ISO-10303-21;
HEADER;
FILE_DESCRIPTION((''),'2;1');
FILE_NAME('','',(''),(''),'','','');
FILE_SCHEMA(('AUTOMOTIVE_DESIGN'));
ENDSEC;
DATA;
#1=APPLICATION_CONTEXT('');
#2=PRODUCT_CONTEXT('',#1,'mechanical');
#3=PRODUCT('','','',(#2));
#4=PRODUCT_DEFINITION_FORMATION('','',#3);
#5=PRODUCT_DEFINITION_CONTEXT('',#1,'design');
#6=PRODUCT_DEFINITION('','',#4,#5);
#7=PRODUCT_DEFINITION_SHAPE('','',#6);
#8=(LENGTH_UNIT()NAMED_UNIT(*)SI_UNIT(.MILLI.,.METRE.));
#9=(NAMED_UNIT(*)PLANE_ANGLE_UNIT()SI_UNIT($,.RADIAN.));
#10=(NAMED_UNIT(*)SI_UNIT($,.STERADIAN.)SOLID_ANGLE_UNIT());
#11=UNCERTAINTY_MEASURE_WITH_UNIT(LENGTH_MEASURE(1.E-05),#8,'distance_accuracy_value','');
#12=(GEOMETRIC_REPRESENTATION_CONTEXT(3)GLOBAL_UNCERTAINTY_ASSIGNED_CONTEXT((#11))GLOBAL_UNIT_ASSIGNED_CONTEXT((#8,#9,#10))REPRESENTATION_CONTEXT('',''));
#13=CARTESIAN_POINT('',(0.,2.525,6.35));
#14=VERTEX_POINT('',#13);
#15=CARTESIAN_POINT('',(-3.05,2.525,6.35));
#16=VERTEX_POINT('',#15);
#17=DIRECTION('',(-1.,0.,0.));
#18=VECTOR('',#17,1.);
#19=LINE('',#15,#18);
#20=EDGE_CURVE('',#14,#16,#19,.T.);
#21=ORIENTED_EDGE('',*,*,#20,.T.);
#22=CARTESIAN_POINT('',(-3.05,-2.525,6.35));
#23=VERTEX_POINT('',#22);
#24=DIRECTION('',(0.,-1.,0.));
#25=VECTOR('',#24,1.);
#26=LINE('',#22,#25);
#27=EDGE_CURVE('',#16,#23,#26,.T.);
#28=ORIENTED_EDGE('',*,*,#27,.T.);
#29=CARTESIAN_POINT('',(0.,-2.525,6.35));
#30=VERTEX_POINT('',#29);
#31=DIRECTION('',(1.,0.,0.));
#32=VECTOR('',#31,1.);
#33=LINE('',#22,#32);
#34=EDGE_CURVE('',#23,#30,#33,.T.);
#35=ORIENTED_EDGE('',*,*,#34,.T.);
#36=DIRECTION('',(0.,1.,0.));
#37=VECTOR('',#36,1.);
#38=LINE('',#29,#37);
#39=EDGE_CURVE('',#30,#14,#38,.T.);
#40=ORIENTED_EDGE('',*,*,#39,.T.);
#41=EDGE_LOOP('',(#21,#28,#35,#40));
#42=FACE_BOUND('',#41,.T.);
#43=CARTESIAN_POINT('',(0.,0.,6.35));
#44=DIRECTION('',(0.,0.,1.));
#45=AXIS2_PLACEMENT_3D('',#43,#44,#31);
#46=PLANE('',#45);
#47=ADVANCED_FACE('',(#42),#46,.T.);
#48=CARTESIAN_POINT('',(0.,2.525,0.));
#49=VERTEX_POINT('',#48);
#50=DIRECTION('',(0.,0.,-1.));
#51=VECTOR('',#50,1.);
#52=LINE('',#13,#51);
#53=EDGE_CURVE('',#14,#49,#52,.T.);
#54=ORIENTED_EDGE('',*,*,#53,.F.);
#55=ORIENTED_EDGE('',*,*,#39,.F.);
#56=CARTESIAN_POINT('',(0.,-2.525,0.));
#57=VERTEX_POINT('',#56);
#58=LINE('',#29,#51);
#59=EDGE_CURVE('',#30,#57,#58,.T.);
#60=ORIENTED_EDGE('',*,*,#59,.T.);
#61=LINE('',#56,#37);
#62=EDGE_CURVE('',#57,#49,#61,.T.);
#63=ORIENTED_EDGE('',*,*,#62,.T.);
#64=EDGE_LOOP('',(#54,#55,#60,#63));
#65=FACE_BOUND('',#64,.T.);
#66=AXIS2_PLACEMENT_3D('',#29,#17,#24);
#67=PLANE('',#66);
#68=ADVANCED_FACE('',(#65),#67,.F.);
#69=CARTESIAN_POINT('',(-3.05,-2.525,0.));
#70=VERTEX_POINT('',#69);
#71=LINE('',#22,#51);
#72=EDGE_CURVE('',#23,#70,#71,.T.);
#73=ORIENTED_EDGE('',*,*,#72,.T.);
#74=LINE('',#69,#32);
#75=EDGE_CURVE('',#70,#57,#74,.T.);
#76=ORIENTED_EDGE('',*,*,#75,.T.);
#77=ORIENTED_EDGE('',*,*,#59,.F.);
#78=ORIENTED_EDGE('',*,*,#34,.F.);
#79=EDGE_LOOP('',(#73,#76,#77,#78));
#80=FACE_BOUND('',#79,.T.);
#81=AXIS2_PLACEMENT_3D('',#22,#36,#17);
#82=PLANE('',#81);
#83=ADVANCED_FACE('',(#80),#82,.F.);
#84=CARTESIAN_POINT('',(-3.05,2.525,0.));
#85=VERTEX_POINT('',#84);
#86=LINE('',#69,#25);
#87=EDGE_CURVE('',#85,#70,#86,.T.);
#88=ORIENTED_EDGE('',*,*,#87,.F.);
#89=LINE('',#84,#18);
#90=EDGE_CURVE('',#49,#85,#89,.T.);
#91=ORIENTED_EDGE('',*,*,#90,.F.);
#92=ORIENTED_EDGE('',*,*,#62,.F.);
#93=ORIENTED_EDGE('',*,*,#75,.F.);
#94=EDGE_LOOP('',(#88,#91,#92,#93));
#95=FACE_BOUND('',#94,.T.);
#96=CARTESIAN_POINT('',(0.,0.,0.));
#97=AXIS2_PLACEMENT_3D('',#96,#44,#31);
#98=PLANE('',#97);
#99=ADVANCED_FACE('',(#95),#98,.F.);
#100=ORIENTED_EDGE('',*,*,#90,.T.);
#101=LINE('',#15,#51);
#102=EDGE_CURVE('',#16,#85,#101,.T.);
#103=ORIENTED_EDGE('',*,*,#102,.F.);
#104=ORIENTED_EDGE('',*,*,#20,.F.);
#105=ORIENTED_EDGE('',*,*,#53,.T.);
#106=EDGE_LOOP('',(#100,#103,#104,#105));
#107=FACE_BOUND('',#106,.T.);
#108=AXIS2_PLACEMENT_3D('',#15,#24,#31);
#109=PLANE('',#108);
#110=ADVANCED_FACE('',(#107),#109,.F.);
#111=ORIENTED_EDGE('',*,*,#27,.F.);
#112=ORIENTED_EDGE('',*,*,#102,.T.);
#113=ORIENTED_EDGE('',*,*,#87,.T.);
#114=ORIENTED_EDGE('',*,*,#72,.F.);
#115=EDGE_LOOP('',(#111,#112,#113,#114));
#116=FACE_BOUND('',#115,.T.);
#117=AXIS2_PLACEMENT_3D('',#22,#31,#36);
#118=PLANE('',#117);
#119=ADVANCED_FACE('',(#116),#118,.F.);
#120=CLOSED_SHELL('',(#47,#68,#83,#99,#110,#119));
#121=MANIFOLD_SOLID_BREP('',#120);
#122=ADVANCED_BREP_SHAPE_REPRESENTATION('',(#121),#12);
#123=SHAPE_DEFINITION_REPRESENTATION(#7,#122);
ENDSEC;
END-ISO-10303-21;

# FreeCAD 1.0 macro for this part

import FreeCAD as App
import Part
import Sketcher
Q = App.Units.Quantity


def add_polygon(sketch, points):
    """Adds a closed chain of lines whose ends are joined by coincident constraints."""
    first, n = sketch.GeometryCount, len(points)
    for a, b in zip(points, points[1:] + points[:1]):
        sketch.addGeometry(Part.LineSegment(App.Vector(*a, 0), App.Vector(*b, 0)), False)
    for i in range(n):
        sketch.addConstraint(Sketcher.Constraint("Coincident", first + i, 2, first + (i + 1) % n, 1))

doc = App.newDocument("Part")
body = doc.addObject("PartDesign::Body", "Body")

# Sketch on XY plane
sketch1 = doc.addObject("Sketcher::SketchObject", "Sketch")
body.addObject(sketch1)
sketch1.AttachmentSupport = (doc.XY_Plane, [""])
sketch1.MapMode = "FlatFace"
add_polygon(sketch1, [(-3, -2.5), (0, -2.5), (0, 2.5), (-3, 2.5)])  # lines 0-3
sketch1.addConstraint(Sketcher.Constraint("Horizontal", 0))
sketch1.addConstraint(Sketcher.Constraint("Vertical", 1))
sketch1.addConstraint(Sketcher.Constraint("Horizontal", 2))
sketch1.addConstraint(Sketcher.Constraint("Vertical", 3))
sketch1.addConstraint(Sketcher.Constraint("Symmetric", 0, 2, 1, 2, -1, 1))
sketch1.addConstraint(Sketcher.Constraint("DistanceX", 0, 1, 0, 2, 3.05))
sketch1.addConstraint(Sketcher.Constraint("DistanceY", 1, 1, 1, 2, 5.05))
pad1 = doc.addObject("PartDesign::Pad", "Pad")
body.addObject(pad1)
pad1.Profile = sketch1
pad1.Length = Q("0.25 in")

doc.recompute()
